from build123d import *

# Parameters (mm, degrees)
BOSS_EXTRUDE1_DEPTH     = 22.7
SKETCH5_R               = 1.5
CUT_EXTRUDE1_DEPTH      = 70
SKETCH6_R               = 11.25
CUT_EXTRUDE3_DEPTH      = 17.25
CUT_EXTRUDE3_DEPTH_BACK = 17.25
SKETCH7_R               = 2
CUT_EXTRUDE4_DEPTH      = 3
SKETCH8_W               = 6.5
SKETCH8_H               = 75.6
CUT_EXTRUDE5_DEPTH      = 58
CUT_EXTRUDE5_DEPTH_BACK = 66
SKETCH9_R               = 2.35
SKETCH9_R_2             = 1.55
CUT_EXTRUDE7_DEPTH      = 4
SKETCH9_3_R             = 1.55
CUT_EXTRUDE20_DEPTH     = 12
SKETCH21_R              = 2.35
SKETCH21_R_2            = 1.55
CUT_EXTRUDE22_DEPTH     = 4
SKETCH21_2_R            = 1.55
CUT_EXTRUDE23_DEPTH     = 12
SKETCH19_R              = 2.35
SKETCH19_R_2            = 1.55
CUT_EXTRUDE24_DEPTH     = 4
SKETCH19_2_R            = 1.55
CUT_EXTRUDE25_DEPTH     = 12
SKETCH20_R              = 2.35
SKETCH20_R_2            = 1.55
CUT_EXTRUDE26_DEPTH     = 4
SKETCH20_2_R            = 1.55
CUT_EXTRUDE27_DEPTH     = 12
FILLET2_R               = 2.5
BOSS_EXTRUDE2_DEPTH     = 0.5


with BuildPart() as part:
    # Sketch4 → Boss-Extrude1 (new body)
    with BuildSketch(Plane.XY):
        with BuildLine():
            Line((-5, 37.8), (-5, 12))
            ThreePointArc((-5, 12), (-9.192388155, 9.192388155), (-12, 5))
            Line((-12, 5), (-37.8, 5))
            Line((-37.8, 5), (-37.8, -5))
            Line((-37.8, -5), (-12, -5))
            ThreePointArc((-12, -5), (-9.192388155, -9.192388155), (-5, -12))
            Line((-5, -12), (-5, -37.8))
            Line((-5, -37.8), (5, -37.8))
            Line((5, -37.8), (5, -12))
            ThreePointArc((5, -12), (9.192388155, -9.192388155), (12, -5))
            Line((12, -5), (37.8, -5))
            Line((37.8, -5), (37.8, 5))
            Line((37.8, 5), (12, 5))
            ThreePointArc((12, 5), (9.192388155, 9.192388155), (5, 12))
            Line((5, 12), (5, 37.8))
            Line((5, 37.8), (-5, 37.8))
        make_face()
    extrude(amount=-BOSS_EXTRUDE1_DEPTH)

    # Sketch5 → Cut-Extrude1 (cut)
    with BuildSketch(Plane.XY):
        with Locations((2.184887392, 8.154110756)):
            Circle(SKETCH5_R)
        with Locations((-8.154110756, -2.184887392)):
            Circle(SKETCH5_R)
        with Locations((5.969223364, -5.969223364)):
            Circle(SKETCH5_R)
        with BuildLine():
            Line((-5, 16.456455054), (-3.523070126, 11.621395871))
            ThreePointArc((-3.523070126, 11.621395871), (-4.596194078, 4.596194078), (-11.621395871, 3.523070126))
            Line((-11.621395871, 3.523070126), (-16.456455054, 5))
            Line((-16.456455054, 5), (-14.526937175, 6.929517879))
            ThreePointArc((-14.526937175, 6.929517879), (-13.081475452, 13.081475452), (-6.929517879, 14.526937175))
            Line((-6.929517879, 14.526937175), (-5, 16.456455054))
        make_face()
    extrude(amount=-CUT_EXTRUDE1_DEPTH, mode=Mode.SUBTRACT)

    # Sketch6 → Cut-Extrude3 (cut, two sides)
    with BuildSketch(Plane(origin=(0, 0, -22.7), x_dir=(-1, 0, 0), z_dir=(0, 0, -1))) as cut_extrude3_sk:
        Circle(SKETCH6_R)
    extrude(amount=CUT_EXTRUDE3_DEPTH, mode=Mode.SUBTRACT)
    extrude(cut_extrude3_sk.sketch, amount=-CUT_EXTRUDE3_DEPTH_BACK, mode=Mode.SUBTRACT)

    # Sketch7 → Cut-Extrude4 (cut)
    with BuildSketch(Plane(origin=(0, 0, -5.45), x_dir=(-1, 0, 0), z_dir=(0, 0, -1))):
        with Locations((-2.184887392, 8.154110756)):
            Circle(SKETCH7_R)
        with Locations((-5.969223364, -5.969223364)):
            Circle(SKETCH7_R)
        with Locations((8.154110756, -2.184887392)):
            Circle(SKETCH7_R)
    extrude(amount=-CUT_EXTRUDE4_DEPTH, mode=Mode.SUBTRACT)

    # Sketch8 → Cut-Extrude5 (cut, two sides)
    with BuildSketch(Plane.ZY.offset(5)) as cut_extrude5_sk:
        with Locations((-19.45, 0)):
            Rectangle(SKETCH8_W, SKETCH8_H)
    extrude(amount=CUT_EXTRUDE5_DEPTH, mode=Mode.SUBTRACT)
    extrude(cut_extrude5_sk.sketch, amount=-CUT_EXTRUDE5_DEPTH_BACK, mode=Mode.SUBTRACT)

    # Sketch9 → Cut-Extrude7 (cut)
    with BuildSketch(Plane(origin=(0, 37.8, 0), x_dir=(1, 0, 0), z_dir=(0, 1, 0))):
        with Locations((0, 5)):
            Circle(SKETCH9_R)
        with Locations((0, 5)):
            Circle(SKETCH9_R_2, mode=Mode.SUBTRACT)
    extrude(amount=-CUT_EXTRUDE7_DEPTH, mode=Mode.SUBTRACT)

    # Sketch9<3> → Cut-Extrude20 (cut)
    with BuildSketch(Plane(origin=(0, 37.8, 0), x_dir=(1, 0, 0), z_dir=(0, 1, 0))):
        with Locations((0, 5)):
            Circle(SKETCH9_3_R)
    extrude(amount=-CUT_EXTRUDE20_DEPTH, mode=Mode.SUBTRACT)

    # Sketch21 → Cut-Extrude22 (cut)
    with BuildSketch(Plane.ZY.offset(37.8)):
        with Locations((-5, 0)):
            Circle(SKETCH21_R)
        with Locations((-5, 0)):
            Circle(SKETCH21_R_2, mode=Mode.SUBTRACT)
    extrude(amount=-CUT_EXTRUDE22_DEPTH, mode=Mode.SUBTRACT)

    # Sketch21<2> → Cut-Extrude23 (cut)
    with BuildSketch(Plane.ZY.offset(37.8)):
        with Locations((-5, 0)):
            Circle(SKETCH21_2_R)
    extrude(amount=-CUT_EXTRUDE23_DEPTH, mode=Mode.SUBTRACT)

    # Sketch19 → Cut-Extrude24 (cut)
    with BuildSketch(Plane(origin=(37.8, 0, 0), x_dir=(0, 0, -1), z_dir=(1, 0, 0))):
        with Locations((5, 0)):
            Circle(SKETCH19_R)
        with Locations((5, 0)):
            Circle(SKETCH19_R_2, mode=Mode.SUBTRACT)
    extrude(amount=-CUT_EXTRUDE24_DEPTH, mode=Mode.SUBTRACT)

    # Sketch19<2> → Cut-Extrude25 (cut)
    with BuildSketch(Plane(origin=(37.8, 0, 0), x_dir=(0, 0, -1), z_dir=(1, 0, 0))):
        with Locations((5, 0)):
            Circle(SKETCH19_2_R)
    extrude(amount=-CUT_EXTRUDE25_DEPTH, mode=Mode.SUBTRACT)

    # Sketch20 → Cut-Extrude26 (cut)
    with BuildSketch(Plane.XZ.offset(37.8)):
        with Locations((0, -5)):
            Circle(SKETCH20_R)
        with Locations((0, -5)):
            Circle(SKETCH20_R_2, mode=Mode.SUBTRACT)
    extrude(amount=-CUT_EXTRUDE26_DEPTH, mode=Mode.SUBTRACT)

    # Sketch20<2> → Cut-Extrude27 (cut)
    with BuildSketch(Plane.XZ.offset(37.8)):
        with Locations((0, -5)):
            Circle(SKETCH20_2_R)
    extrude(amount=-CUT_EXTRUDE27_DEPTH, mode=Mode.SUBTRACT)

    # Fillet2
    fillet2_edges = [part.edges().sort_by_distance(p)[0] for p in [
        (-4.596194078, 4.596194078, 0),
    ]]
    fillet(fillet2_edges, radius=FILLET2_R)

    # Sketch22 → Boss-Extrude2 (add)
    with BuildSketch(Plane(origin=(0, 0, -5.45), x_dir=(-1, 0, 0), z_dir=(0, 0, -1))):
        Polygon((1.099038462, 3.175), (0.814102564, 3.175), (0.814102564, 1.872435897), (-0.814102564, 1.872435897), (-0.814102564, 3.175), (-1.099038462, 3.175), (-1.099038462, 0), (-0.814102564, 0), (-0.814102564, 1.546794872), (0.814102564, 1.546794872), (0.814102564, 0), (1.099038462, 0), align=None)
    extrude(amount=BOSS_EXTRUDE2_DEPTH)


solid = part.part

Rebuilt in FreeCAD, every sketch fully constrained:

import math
import FreeCAD as App
import Part
import Sketcher
from FreeCAD import Vector
Q = App.Units.Quantity


def edges_at(feature, points):
    """Names of the edges that pass closest to the given points."""
    edges = feature.Shape.Edges
    near = lambda p: min(range(len(edges)), key=lambda i: edges[i].distToShape(Part.Vertex(*p))[0])
    return sorted({f"Edge{near(p) + 1}" for p in points})

doc = App.newDocument("Part")
params = doc.addObject("Spreadsheet::Sheet", "Params")
for row, (alias, value) in enumerate([
    ("sketch1_radius", "13 mm"),
    ("sketch1_width", "10 mm"),
    ("sketch1_width2", "25.8 mm"),
    ("pad1_length", "22.7 mm"),
    ("sketch2_diameter", "3 mm"),
    ("sketch2_radius", "6 mm"),
    ("pocket1_length", "70 mm"),
    ("sketch3_diameter", "22.5 mm"),
    ("pocket2_length", "17.25 mm"),
    ("pocket2_length2", "17.25 mm"),
    ("sketch4_diameter", "4 mm"),
    ("pocket3_length", "3 mm"),
    ("sketch5_width", "75.6 mm"),
    ("sketch5_height", "6.5 mm"),
    ("sketch6_diameter", "4.7 mm"),
    ("sketch6_diameter2", "3.1 mm"),
    ("pocket5_length", "4 mm"),
    ("sketch7_diameter", "3.1 mm"),
    ("pocket6_length", "12 mm"),
    ("sketch8_diameter", "4.7 mm"),
    ("sketch8_diameter2", "3.1 mm"),
    ("pocket7_length", "4 mm"),
    ("sketch9_diameter", "3.1 mm"),
    ("pocket8_length", "12 mm"),
    ("sketch10_diameter", "4.7 mm"),
    ("sketch10_diameter2", "3.1 mm"),
    ("pocket9_length", "4 mm"),
    ("sketch11_diameter", "3.1 mm"),
    ("pocket10_length", "12 mm"),
    ("sketch12_diameter", "4.7 mm"),
    ("sketch12_diameter2", "3.1 mm"),
    ("pocket11_length", "4 mm"),
    ("sketch13_diameter", "3.1 mm"),
    ("pocket12_length", "12 mm"),
    ("fillet_radius", "2.5 mm"),
    ("pad2_length", "0.5 mm"),
], start=1):
    params.set(f"A{row}", alias)
    params.set(f"B{row}", "=" + value)
    params.setAlias(f"B{row}", alias)

body = doc.addObject("PartDesign::Body", "Body")

# Sketch on XY plane
sketch1 = doc.addObject("Sketcher::SketchObject", "Sketch")
body.addObject(sketch1)
sketch1.AttachmentSupport = (doc.XY_Plane, [""])
sketch1.MapMode = "FlatFace"
sketch1.addGeometry([
    Part.LineSegment(Vector(-5, 38, 0), Vector(-5, 12, 0)),  # 0
    Part.ArcOfCircle(Part.Circle(Vector(0, 0, 0), Vector(0, 0, 1), 13), math.radians(113), math.radians(157)),  # 1
    Part.LineSegment(Vector(-12, 5, 0), Vector(-38, 5, 0)),  # 2
    Part.LineSegment(Vector(-38, 5, 0), Vector(-38, -5, 0)),  # 3
    Part.LineSegment(Vector(-38, -5, 0), Vector(-12, -5, 0)),  # 4
    Part.ArcOfCircle(Part.Circle(Vector(0, 0, 0), Vector(0, 0, 1), 13), math.radians(-157), math.radians(-113)),  # 5
    Part.LineSegment(Vector(-5, -12, 0), Vector(-5, -38, 0)),  # 6
    Part.LineSegment(Vector(-5, -38, 0), Vector(5, -38, 0)),  # 7
    Part.LineSegment(Vector(5, -38, 0), Vector(5, -12, 0)),  # 8
    Part.ArcOfCircle(Part.Circle(Vector(0, 0, 0), Vector(0, 0, 1), 13), math.radians(-67), math.radians(-23)),  # 9
    Part.LineSegment(Vector(12, -5, 0), Vector(38, -5, 0)),  # 10
    Part.LineSegment(Vector(38, -5, 0), Vector(38, 5, 0)),  # 11
    Part.LineSegment(Vector(38, 5, 0), Vector(12, 5, 0)),  # 12
    Part.ArcOfCircle(Part.Circle(Vector(0, 0, 0), Vector(0, 0, 1), 13), math.radians(23), math.radians(67)),  # 13
    Part.LineSegment(Vector(5, 12, 0), Vector(5, 38, 0)),  # 14
    Part.LineSegment(Vector(5, 38, 0), Vector(-5, 38, 0)),  # 15
], False)
sketch1.addConstraint([
    Sketcher.Constraint("Coincident", 0, 2, 1, 1),
    Sketcher.Constraint("Coincident", 1, 2, 2, 1),
    Sketcher.Constraint("Coincident", 2, 2, 3, 1),
    Sketcher.Constraint("Coincident", 3, 2, 4, 1),
    Sketcher.Constraint("Coincident", 4, 2, 5, 1),
    Sketcher.Constraint("Coincident", 5, 2, 6, 1),
    Sketcher.Constraint("Coincident", 6, 2, 7, 1),
    Sketcher.Constraint("Coincident", 7, 2, 8, 1),
    Sketcher.Constraint("Coincident", 8, 2, 9, 1),
    Sketcher.Constraint("Coincident", 9, 2, 10, 1),
    Sketcher.Constraint("Coincident", 10, 2, 11, 1),
    Sketcher.Constraint("Coincident", 11, 2, 12, 1),
    Sketcher.Constraint("Coincident", 12, 2, 13, 1),
    Sketcher.Constraint("Coincident", 13, 2, 14, 1),
    Sketcher.Constraint("Coincident", 14, 2, 15, 1),
    Sketcher.Constraint("Coincident", 15, 2, 0, 1),
    Sketcher.Constraint("Vertical", 0),
    Sketcher.Constraint("Horizontal", 2),
    Sketcher.Constraint("Vertical", 3),
    Sketcher.Constraint("Horizontal", 4),
    Sketcher.Constraint("Vertical", 6),
    Sketcher.Constraint("Horizontal", 7),
    Sketcher.Constraint("Vertical", 8),
    Sketcher.Constraint("Horizontal", 10),
    Sketcher.Constraint("Vertical", 11),
    Sketcher.Constraint("Horizontal", 12),
    Sketcher.Constraint("Vertical", 14),
    Sketcher.Constraint("Horizontal", 15),
    Sketcher.Constraint("Coincident", 1, 3, -1, 1),
    Sketcher.Constraint("Coincident", 5, 3, -1, 1),
    Sketcher.Constraint("Coincident", 9, 3, -1, 1),
    Sketcher.Constraint("Coincident", 13, 3, -1, 1),
    Sketcher.Constraint("Equal", 1, 5),
    Sketcher.Constraint("Equal", 5, 9),
    Sketcher.Constraint("Equal", 9, 13),
    Sketcher.Constraint("Symmetric", 2, 2, 10, 2, -1, 1),
    Sketcher.Constraint("Symmetric", 6, 2, 14, 2, -1, 1),
    Sketcher.Constraint("Horizontal", 5, 2, 8, 2),
    Sketcher.Constraint("Horizontal", 4, 2, 9, 2),
    Sketcher.Constraint("Horizontal", 2, 2, 11, 2),
    Sketcher.Constraint("Horizontal", 0, 2, 13, 2),
    Sketcher.Constraint("Equal", 12, 0),
    Sketcher.Constraint("Equal", 15, 3),
    Sketcher.Constraint("Radius", 1, 13.0),
    Sketcher.Constraint("DistanceX", 7, 1, 7, 2, 10.0),
    Sketcher.Constraint("DistanceX", 2, 2, 2, 1, 25.8),
])
sketch1.setExpression("Constraints[43]", "Params.sketch1_radius")
sketch1.setExpression("Constraints[44]", "Params.sketch1_width")
sketch1.setExpression("Constraints[45]", "Params.sketch1_width2")
pad1 = doc.addObject("PartDesign::Pad", "Pad")
body.addObject(pad1)
pad1.Profile = sketch1
pad1.setExpression("Length", "Params.pad1_length")
pad1.Reversed = True

# Sketch on XY plane
sketch2 = doc.addObject("Sketcher::SketchObject", "Sketch001")
body.addObject(sketch2)
sketch2.AttachmentSupport = (doc.XY_Plane, [""])
sketch2.MapMode = "FlatFace"
sketch2.addGeometry([
    Part.Circle(Vector(2.2, 8.2, 0), Vector(0, 0, 1), 1.5),  # 0
    Part.Circle(Vector(-8.2, -2.2, 0), Vector(0, 0, 1), 1.5),  # 1
    Part.Circle(Vector(6, -6, 0), Vector(0, 0, 1), 1.5),  # 2
    Part.LineSegment(Vector(-3.5, 11.6, 0), Vector(-5, 16.5, 0)),  # 3
    Part.LineSegment(Vector(-5, 16.5, 0), Vector(-6.9, 14.5, 0)),  # 4
    Part.ArcOfCircle(Part.Circle(Vector(-8.8, 8.8, 0), Vector(0, 0, 1), 6), math.radians(71), math.radians(199)),  # 5
    Part.LineSegment(Vector(-14.5, 6.9, 0), Vector(-16.5, 5, 0)),  # 6
    Part.LineSegment(Vector(-16.5, 5, 0), Vector(-11.6, 3.5, 0)),  # 7
    Part.ArcOfCircle(Part.Circle(Vector(-8.8, 8.8, 0), Vector(0, 0, 1), 6), math.radians(-118), math.radians(28)),  # 8
], False)
sketch2.addConstraint([
    Sketcher.Constraint("Coincident", 3, 2, 4, 1),
    Sketcher.Constraint("Coincident", 4, 2, 5, 1),
    Sketcher.Constraint("Coincident", 5, 2, 6, 1),
    Sketcher.Constraint("Coincident", 6, 2, 7, 1),
    Sketcher.Constraint("Coincident", 7, 2, 8, 1),
    Sketcher.Constraint("Coincident", 8, 2, 3, 1),
    Sketcher.Constraint("Coincident", 8, 3, 5, 3),
    Sketcher.Constraint("Equal", 0, 1),
    Sketcher.Constraint("Equal", 1, 2),
    Sketcher.Constraint("Equal", 5, 8),
    Sketcher.Constraint("Parallel", 4, 6),
    Sketcher.Constraint("Equal", 4, 6),
    Sketcher.Constraint("Equal", 3, 7),
    Sketcher.Constraint("Diameter", 0, 3.0),
    Sketcher.Constraint("Radius", 5, 6.0),
    Sketcher.Constraint("Angle", 4, Q("-135 deg")),
    Sketcher.Constraint("DistanceX", 3, 2, -1, 1, 5.0),
    Sketcher.Constraint("DistanceY", -1, 1, 6, 2, 5.0),
    Sketcher.Constraint("DistanceX", 1, 3, 0, 3, 10.338998),
    Sketcher.Constraint("DistanceY", 1, 3, 0, 3, 10.338998),
    Sketcher.Constraint("Distance", 4, 2.72875),
    Sketcher.Constraint("DistanceY", -1, 1, 0, 3, 8.154111),
    Sketcher.Constraint("DistanceX", 1, 3, -1, 1, 8.154111),
    Sketcher.Constraint("DistanceY", -1, 1, 7, 2, 3.52307),
    Sketcher.Constraint("DistanceX", 8, 2, -1, 1, 3.52307),
    Sketcher.Constraint("DistanceX", 5, 3, 2, 3, 14.808058),
    Sketcher.Constraint("DistanceY", 2, 3, 5, 3, 14.808058),
    Sketcher.Constraint("DistanceY", 8, 3, 3, 2, 7.61762),
])
sketch2.setExpression("Constraints[13]", "Params.sketch2_diameter")
sketch2.setExpression("Constraints[14]", "Params.sketch2_radius")
pocket1 = doc.addObject("PartDesign::Pocket", "Pocket")
body.addObject(pocket1)
pocket1.Profile = sketch2
pocket1.setExpression("Length", "Params.pocket1_length")

# Sketch on XY plane
sketch3 = doc.addObject("Sketcher::SketchObject", "Sketch002")
body.addObject(sketch3)
sketch3.AttachmentSupport = (doc.XY_Plane, [""])
sketch3.MapMode = "FlatFace"
sketch3.AttachmentOffset = App.Placement(Vector(0, 0, -22.7), App.Rotation())
sketch3.addGeometry(Part.Circle(Vector(0, 0, 0), Vector(0, 0, 1), 11), False)
sketch3.addConstraint([
    Sketcher.Constraint("Coincident", 0, 3, -1, 1),
    Sketcher.Constraint("Diameter", 0, 22.5),
])
sketch3.setExpression("Constraints[1]", "Params.sketch3_diameter")
pocket2 = doc.addObject("PartDesign::Pocket", "Pocket001")
body.addObject(pocket2)
pocket2.Profile = sketch3
pocket2.Type = "TwoLengths"
pocket2.setExpression("Length", "Params.pocket2_length")
pocket2.setExpression("Length2", "Params.pocket2_length2")

# Sketch on XY plane
sketch4 = doc.addObject("Sketcher::SketchObject", "Sketch003")
body.addObject(sketch4)
sketch4.AttachmentSupport = (doc.XY_Plane, [""])
sketch4.MapMode = "FlatFace"
sketch4.AttachmentOffset = App.Placement(Vector(0, 0, -5.45), App.Rotation())
sketch4.addGeometry([
    Part.Circle(Vector(2.2, 8.2, 0), Vector(0, 0, 1), 2),
    Part.Circle(Vector(6, -6, 0), Vector(0, 0, 1), 2),
    Part.Circle(Vector(-8.2, -2.2, 0), Vector(0, 0, 1), 2),
], False)
sketch4.addConstraint([
    Sketcher.Constraint("Equal", 0, 1),
    Sketcher.Constraint("Equal", 1, 2),
    Sketcher.Constraint("Diameter", 0, 4.0),
    Sketcher.Constraint("DistanceX", 2, 3, 0, 3, 10.338998),
    Sketcher.Constraint("DistanceY", 2, 3, 0, 3, 10.338998),
    Sketcher.Constraint("DistanceY", -1, 1, 0, 3, 8.154111),
    Sketcher.Constraint("DistanceX", 2, 3, -1, 1, 8.154111),
    Sketcher.Constraint("DistanceX", -1, 1, 1, 3, 5.969223),
    Sketcher.Constraint("DistanceY", 1, 3, -1, 1, 5.969223),
])
sketch4.setExpression("Constraints[2]", "Params.sketch4_diameter")
pocket3 = doc.addObject("PartDesign::Pocket", "Pocket002")
body.addObject(pocket3)
pocket3.Profile = sketch4
pocket3.setExpression("Length", "Params.pocket3_length")
pocket3.Reversed = True

# Sketch on YZ plane
sketch5 = doc.addObject("Sketcher::SketchObject", "Sketch004")
body.addObject(sketch5)
sketch5.AttachmentSupport = (doc.YZ_Plane, [""])
sketch5.MapMode = "FlatFace"
sketch5.AttachmentOffset = App.Placement(Vector(0, 0, -5), App.Rotation())
sketch5.addGeometry([
    Part.LineSegment(Vector(38, -23, 0), Vector(-38, -23, 0)),
    Part.LineSegment(Vector(-38, -23, 0), Vector(-38, -16, 0)),
    Part.LineSegment(Vector(-38, -16, 0), Vector(38, -16, 0)),
    Part.LineSegment(Vector(38, -16, 0), Vector(38, -23, 0)),
], False)
sketch5.addConstraint([
    Sketcher.Constraint("Coincident", 0, 2, 1, 1),
    Sketcher.Constraint("Coincident", 1, 2, 2, 1),
    Sketcher.Constraint("Coincident", 2, 2, 3, 1),
    Sketcher.Constraint("Coincident", 3, 2, 0, 1),
    Sketcher.Constraint("Horizontal", 0),
    Sketcher.Constraint("Vertical", 1),
    Sketcher.Constraint("Horizontal", 2),
    Sketcher.Constraint("Vertical", 3),
    Sketcher.Constraint("DistanceX", 0, 2, 0, 1, 75.6),
    Sketcher.Constraint("DistanceY", 1, 1, 1, 2, 6.5),
    Sketcher.Constraint("DistanceX", 0, 2, -1, 1, 37.8),
    Sketcher.Constraint("DistanceY", 0, 2, -1, 1, 22.7),
])
sketch5.setExpression("Constraints[8]", "Params.sketch5_width")
sketch5.setExpression("Constraints[9]", "Params.sketch5_height")
pocket4 = doc.addObject("PartDesign::Pocket", "Pocket003")
body.addObject(pocket4)
pocket4.Profile = sketch5
pocket4.Type = "ThroughAll"
pocket4.Midplane = True

# Sketch on XZ plane
sketch6 = doc.addObject("Sketcher::SketchObject", "Sketch005")
body.addObject(sketch6)
sketch6.AttachmentSupport = (doc.XZ_Plane, [""])
sketch6.MapMode = "FlatFace"
sketch6.AttachmentOffset = App.Placement(Vector(0, 0, -37.8), App.Rotation())
sketch6.addGeometry([
    Part.Circle(Vector(0, -5, 0), Vector(0, 0, 1), 2.4),
    Part.Circle(Vector(0, -5, 0), Vector(0, 0, 1), 1.6),
], False)
sketch6.addConstraint([
    Sketcher.Constraint("Coincident", 1, 3, 0, 3),
    Sketcher.Constraint("PointOnObject", 0, 3, -2),
    Sketcher.Constraint("Diameter", 0, 4.7),
    Sketcher.Constraint("Diameter", 1, 3.1),
    Sketcher.Constraint("DistanceY", 0, 3, -1, 1, 5.0),
])
sketch6.setExpression("Constraints[2]", "Params.sketch6_diameter")
sketch6.setExpression("Constraints[3]", "Params.sketch6_diameter2")
pocket5 = doc.addObject("PartDesign::Pocket", "Pocket004")
body.addObject(pocket5)
pocket5.Profile = sketch6
pocket5.setExpression("Length", "Params.pocket5_length")
pocket5.Reversed = True

# Sketch on XZ plane
sketch7 = doc.addObject("Sketcher::SketchObject", "Sketch006")
body.addObject(sketch7)
sketch7.AttachmentSupport = (doc.XZ_Plane, [""])
sketch7.MapMode = "FlatFace"
sketch7.AttachmentOffset = App.Placement(Vector(0, 0, -37.8), App.Rotation())
sketch7.addGeometry(Part.Circle(Vector(0, -5, 0), Vector(0, 0, 1), 1.6), False)
sketch7.addConstraint([
    Sketcher.Constraint("PointOnObject", 0, 3, -2),
    Sketcher.Constraint("Diameter", 0, 3.1),
    Sketcher.Constraint("DistanceY", 0, 3, -1, 1, 5.0),
])
sketch7.setExpression("Constraints[1]", "Params.sketch7_diameter")
pocket6 = doc.addObject("PartDesign::Pocket", "Pocket005")
body.addObject(pocket6)
pocket6.Profile = sketch7
pocket6.setExpression("Length", "Params.pocket6_length")
pocket6.Reversed = True

# Sketch on YZ plane
sketch8 = doc.addObject("Sketcher::SketchObject", "Sketch007")
body.addObject(sketch8)
sketch8.AttachmentSupport = (doc.YZ_Plane, [""])
sketch8.MapMode = "FlatFace"
sketch8.AttachmentOffset = App.Placement(Vector(0, 0, -37.8), App.Rotation())
sketch8.addGeometry([
    Part.Circle(Vector(0, -5, 0), Vector(0, 0, 1), 2.4),
    Part.Circle(Vector(0, -5, 0), Vector(0, 0, 1), 1.6),
], False)
sketch8.addConstraint([
    Sketcher.Constraint("Coincident", 1, 3, 0, 3),
    Sketcher.Constraint("PointOnObject", 0, 3, -2),
    Sketcher.Constraint("Diameter", 0, 4.7),
    Sketcher.Constraint("Diameter", 1, 3.1),
    Sketcher.Constraint("DistanceY", 0, 3, -1, 1, 5.0),
])
sketch8.setExpression("Constraints[2]", "Params.sketch8_diameter")
sketch8.setExpression("Constraints[3]", "Params.sketch8_diameter2")
pocket7 = doc.addObject("PartDesign::Pocket", "Pocket006")
body.addObject(pocket7)
pocket7.Profile = sketch8
pocket7.setExpression("Length", "Params.pocket7_length")
pocket7.Reversed = True

# Sketch on YZ plane
sketch9 = doc.addObject("Sketcher::SketchObject", "Sketch008")
body.addObject(sketch9)
sketch9.AttachmentSupport = (doc.YZ_Plane, [""])
sketch9.MapMode = "FlatFace"
sketch9.AttachmentOffset = App.Placement(Vector(0, 0, -37.8), App.Rotation())
sketch9.addGeometry(Part.Circle(Vector(0, -5, 0), Vector(0, 0, 1), 1.6), False)
sketch9.addConstraint([
    Sketcher.Constraint("PointOnObject", 0, 3, -2),
    Sketcher.Constraint("Diameter", 0, 3.1),
    Sketcher.Constraint("DistanceY", 0, 3, -1, 1, 5.0),
])
sketch9.setExpression("Constraints[1]", "Params.sketch9_diameter")
pocket8 = doc.addObject("PartDesign::Pocket", "Pocket007")
body.addObject(pocket8)
pocket8.Profile = sketch9
pocket8.setExpression("Length", "Params.pocket8_length")
pocket8.Reversed = True

# Sketch on YZ plane
sketch10 = doc.addObject("Sketcher::SketchObject", "Sketch009")
body.addObject(sketch10)
sketch10.AttachmentSupport = (doc.YZ_Plane, [""])
sketch10.MapMode = "FlatFace"
sketch10.AttachmentOffset = App.Placement(Vector(0, 0, 37.8), App.Rotation())
sketch10.addGeometry([
    Part.Circle(Vector(0, -5, 0), Vector(0, 0, 1), 2.4),
    Part.Circle(Vector(0, -5, 0), Vector(0, 0, 1), 1.6),
], False)
sketch10.addConstraint([
    Sketcher.Constraint("Coincident", 1, 3, 0, 3),
    Sketcher.Constraint("PointOnObject", 0, 3, -2),
    Sketcher.Constraint("Diameter", 0, 4.7),
    Sketcher.Constraint("Diameter", 1, 3.1),
    Sketcher.Constraint("DistanceY", 0, 3, -1, 1, 5.0),
])
sketch10.setExpression("Constraints[2]", "Params.sketch10_diameter")
sketch10.setExpression("Constraints[3]", "Params.sketch10_diameter2")
pocket9 = doc.addObject("PartDesign::Pocket", "Pocket008")
body.addObject(pocket9)
pocket9.Profile = sketch10
pocket9.setExpression("Length", "Params.pocket9_length")

# Sketch on YZ plane
sketch11 = doc.addObject("Sketcher::SketchObject", "Sketch010")
body.addObject(sketch11)
sketch11.AttachmentSupport = (doc.YZ_Plane, [""])
sketch11.MapMode = "FlatFace"
sketch11.AttachmentOffset = App.Placement(Vector(0, 0, 37.8), App.Rotation())
sketch11.addGeometry(Part.Circle(Vector(0, -5, 0), Vector(0, 0, 1), 1.6), False)
sketch11.addConstraint([
    Sketcher.Constraint("PointOnObject", 0, 3, -2),
    Sketcher.Constraint("Diameter", 0, 3.1),
    Sketcher.Constraint("DistanceY", 0, 3, -1, 1, 5.0),
])
sketch11.setExpression("Constraints[1]", "Params.sketch11_diameter")
pocket10 = doc.addObject("PartDesign::Pocket", "Pocket009")
body.addObject(pocket10)
pocket10.Profile = sketch11
pocket10.setExpression("Length", "Params.pocket10_length")

# Sketch on XZ plane
sketch12 = doc.addObject("Sketcher::SketchObject", "Sketch011")
body.addObject(sketch12)
sketch12.AttachmentSupport = (doc.XZ_Plane, [""])
sketch12.MapMode = "FlatFace"
sketch12.AttachmentOffset = App.Placement(Vector(0, 0, 37.8), App.Rotation())
sketch12.addGeometry([
    Part.Circle(Vector(0, -5, 0), Vector(0, 0, 1), 2.4),
    Part.Circle(Vector(0, -5, 0), Vector(0, 0, 1), 1.6),
], False)
sketch12.addConstraint([
    Sketcher.Constraint("Coincident", 1, 3, 0, 3),
    Sketcher.Constraint("PointOnObject", 0, 3, -2),
    Sketcher.Constraint("Diameter", 0, 4.7),
    Sketcher.Constraint("Diameter", 1, 3.1),
    Sketcher.Constraint("DistanceY", 0, 3, -1, 1, 5.0),
])
sketch12.setExpression("Constraints[2]", "Params.sketch12_diameter")
sketch12.setExpression("Constraints[3]", "Params.sketch12_diameter2")
pocket11 = doc.addObject("PartDesign::Pocket", "Pocket010")
body.addObject(pocket11)
pocket11.Profile = sketch12
pocket11.setExpression("Length", "Params.pocket11_length")

# Sketch on XZ plane
sketch13 = doc.addObject("Sketcher::SketchObject", "Sketch012")
body.addObject(sketch13)
sketch13.AttachmentSupport = (doc.XZ_Plane, [""])
sketch13.MapMode = "FlatFace"
sketch13.AttachmentOffset = App.Placement(Vector(0, 0, 37.8), App.Rotation())
sketch13.addGeometry(Part.Circle(Vector(0, -5, 0), Vector(0, 0, 1), 1.6), False)
sketch13.addConstraint([
    Sketcher.Constraint("PointOnObject", 0, 3, -2),
    Sketcher.Constraint("Diameter", 0, 3.1),
    Sketcher.Constraint("DistanceY", 0, 3, -1, 1, 5.0),
])
sketch13.setExpression("Constraints[1]", "Params.sketch13_diameter")
pocket12 = doc.addObject("PartDesign::Pocket", "Pocket011")
body.addObject(pocket12)
pocket12.Profile = sketch13
pocket12.setExpression("Length", "Params.pocket12_length")
doc.recompute()

fillet = doc.addObject("PartDesign::Fillet", "Fillet")
body.addObject(fillet)
fillet.Base = (pocket12, edges_at(pocket12, [(-4.596, 4.596, 0)]))
fillet.setExpression("Radius", "Params.fillet_radius")

# Sketch on XY plane
sketch14 = doc.addObject("Sketcher::SketchObject", "Sketch013")
body.addObject(sketch14)
sketch14.AttachmentSupport = (doc.XY_Plane, [""])
sketch14.MapMode = "FlatFace"
sketch14.AttachmentOffset = App.Placement(Vector(0, 0, -5.45), App.Rotation())
sketch14.addGeometry([
    Part.LineSegment(Vector(-1.1, 3.17, 0), Vector(-0.81, 3.17, 0)),  # 0
    Part.LineSegment(Vector(-0.81, 3.17, 0), Vector(-0.81, 1.87, 0)),  # 1
    Part.LineSegment(Vector(-0.81, 1.87, 0), Vector(0.81, 1.87, 0)),  # 2
    Part.LineSegment(Vector(0.81, 1.87, 0), Vector(0.81, 3.17, 0)),  # 3
    Part.LineSegment(Vector(0.81, 3.17, 0), Vector(1.1, 3.17, 0)),  # 4
    Part.LineSegment(Vector(1.1, 3.17, 0), Vector(1.1, 0, 0)),  # 5
    Part.LineSegment(Vector(1.1, 0, 0), Vector(0.81, 0, 0)),  # 6
    Part.LineSegment(Vector(0.81, 0, 0), Vector(0.81, 1.55, 0)),  # 7
    Part.LineSegment(Vector(0.81, 1.55, 0), Vector(-0.81, 1.55, 0)),  # 8
    Part.LineSegment(Vector(-0.81, 1.55, 0), Vector(-0.81, 0, 0)),  # 9
    Part.LineSegment(Vector(-0.81, 0, 0), Vector(-1.1, 0, 0)),  # 10
    Part.LineSegment(Vector(-1.1, 0, 0), Vector(-1.1, 3.17, 0)),  # 11
], False)
sketch14.addConstraint([
    Sketcher.Constraint("Coincident", 0, 2, 1, 1),
    Sketcher.Constraint("Coincident", 1, 2, 2, 1),
    Sketcher.Constraint("Coincident", 2, 2, 3, 1),
    Sketcher.Constraint("Coincident", 3, 2, 4, 1),
    Sketcher.Constraint("Coincident", 4, 2, 5, 1),
    Sketcher.Constraint("Coincident", 5, 2, 6, 1),
    Sketcher.Constraint("Coincident", 6, 2, 7, 1),
    Sketcher.Constraint("Coincident", 7, 2, 8, 1),
    Sketcher.Constraint("Coincident", 8, 2, 9, 1),
    Sketcher.Constraint("Coincident", 9, 2, 10, 1),
    Sketcher.Constraint("Coincident", 10, 2, 11, 1),
    Sketcher.Constraint("Coincident", 11, 2, 0, 1),
    Sketcher.Constraint("Horizontal", 0),
    Sketcher.Constraint("Vertical", 1),
    Sketcher.Constraint("Horizontal", 2),
    Sketcher.Constraint("Vertical", 3),
    Sketcher.Constraint("Horizontal", 4),
    Sketcher.Constraint("Vertical", 5),
    Sketcher.Constraint("Horizontal", 6),
    Sketcher.Constraint("Vertical", 7),
    Sketcher.Constraint("Horizontal", 8),
    Sketcher.Constraint("Vertical", 9),
    Sketcher.Constraint("Horizontal", 10),
    Sketcher.Constraint("Vertical", 11),
    Sketcher.Constraint("Symmetric", 6, 2, 9, 2, -1, 1),
    Sketcher.Constraint("Symmetric", 0, 2, 3, 2, -2),
    Sketcher.Constraint("Symmetric", 5, 2, 10, 2, -2),
    Sketcher.Constraint("Vertical", 3, 2, 6, 2),
    Sketcher.Constraint("DistanceY", 5, 2, 5, 1, 3.175),
    Sketcher.Constraint("DistanceX", 0, 1, 0, 2, 0.284936),
    Sketcher.Constraint("DistanceX", 2, 1, 2, 2, 1.628205),
    Sketcher.Constraint("DistanceY", 1, 2, 1, 1, 1.302564),
    Sketcher.Constraint("DistanceY", 7, 1, 7, 2, 1.546795),
])
pad2 = doc.addObject("PartDesign::Pad", "Pad001")
body.addObject(pad2)
pad2.Profile = sketch14
pad2.setExpression("Length", "Params.pad2_length")
pad2.Reversed = True

doc.recompute()
